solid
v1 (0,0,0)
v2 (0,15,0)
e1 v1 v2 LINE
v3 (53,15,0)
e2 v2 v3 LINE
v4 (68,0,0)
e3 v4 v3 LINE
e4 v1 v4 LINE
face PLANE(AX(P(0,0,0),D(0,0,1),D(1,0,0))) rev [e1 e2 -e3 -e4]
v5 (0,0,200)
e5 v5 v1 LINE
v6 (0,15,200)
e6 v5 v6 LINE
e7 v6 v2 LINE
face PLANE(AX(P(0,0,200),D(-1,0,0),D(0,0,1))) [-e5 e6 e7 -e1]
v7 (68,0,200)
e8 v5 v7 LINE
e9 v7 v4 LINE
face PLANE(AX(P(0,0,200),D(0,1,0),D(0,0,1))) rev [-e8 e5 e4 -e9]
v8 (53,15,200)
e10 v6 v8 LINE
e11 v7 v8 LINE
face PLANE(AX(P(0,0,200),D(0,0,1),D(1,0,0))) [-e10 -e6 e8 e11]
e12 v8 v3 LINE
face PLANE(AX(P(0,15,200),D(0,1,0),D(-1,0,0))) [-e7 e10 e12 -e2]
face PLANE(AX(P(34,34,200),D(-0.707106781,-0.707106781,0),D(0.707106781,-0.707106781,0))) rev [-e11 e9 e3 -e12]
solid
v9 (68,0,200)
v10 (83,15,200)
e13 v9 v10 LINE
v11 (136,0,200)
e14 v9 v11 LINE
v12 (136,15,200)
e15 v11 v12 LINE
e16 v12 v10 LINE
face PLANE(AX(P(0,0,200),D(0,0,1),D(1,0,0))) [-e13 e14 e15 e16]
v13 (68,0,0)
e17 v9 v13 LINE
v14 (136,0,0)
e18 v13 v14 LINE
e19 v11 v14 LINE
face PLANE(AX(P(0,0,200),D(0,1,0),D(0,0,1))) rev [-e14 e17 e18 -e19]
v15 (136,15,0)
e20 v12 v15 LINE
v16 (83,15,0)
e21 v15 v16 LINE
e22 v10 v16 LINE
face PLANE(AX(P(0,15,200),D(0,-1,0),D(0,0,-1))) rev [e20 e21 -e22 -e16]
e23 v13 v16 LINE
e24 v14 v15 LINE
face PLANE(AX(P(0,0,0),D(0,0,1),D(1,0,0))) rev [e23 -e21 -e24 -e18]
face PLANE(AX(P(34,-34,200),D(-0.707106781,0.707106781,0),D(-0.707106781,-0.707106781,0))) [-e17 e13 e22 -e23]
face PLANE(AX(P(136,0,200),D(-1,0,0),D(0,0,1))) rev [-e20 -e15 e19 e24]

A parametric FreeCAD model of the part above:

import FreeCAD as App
import Part
import Sketcher


def add_polygon(sketch, points):
    """Adds a closed chain of lines whose ends are joined by coincident constraints."""
    first, n = sketch.GeometryCount, len(points)
    for a, b in zip(points, points[1:] + points[:1]):
        sketch.addGeometry(Part.LineSegment(App.Vector(*a, 0), App.Vector(*b, 0)), False)
    for i in range(n):
        sketch.addConstraint(Sketcher.Constraint("Coincident", first + i, 2, first + (i + 1) % n, 1))

doc = App.newDocument("Part")
body = doc.addObject("PartDesign::Body", "Body")

# Sketch on XY plane
sketch1 = body.newObject("Sketcher::SketchObject", "Sketch")
sketch1.AttachmentSupport = (doc.getObject("XY_Plane"), [""])
sketch1.MapMode = "FlatFace"
add_polygon(sketch1, [(0, 15), (0, 0), (68, 0), (53, 15)])  # lines 0-3
sketch1.addConstraint(Sketcher.Constraint("Vertical", 0))
sketch1.addConstraint(Sketcher.Constraint("Horizontal", 1))
sketch1.addConstraint(Sketcher.Constraint("Horizontal", 3))
sketch1.addConstraint(Sketcher.Constraint("Coincident", 0, 2, -1, 1))
sketch1.addConstraint(Sketcher.Constraint("DistanceX", 1, 1, 1, 2, 68.0))
sketch1.addConstraint(Sketcher.Constraint("DistanceX", 3, 2, 3, 1, 53.0))
sketch1.addConstraint(Sketcher.Constraint("DistanceY", 0, 2, 0, 1, 15.0))
pad1 = body.newObject("PartDesign::Pad", "Pad")
pad1.Profile = sketch1
pad1.Length = 200
body2 = doc.addObject("PartDesign::Body", "Body001")

# Sketch on XY plane
sketch2 = body2.newObject("Sketcher::SketchObject", "Sketch001")
sketch2.AttachmentSupport = (doc.getObject("XY_Plane001"), [""])
sketch2.MapMode = "FlatFace"
add_polygon(sketch2, [(83, 15), (68, 0), (136, 0), (136, 15)])  # lines 0-3
sketch2.addConstraint(Sketcher.Constraint("Horizontal", 1))
sketch2.addConstraint(Sketcher.Constraint("Vertical", 2))
sketch2.addConstraint(Sketcher.Constraint("Horizontal", 3))
sketch2.addConstraint(Sketcher.Constraint("PointOnObject", 0, 2, -1))
sketch2.addConstraint(Sketcher.Constraint("DistanceX", 1, 1, 1, 2, 68.0))
sketch2.addConstraint(Sketcher.Constraint("DistanceX", 3, 2, 3, 1, 53.0))
sketch2.addConstraint(Sketcher.Constraint("DistanceY", 2, 1, 2, 2, 15.0))
sketch2.addConstraint(Sketcher.Constraint("DistanceX", -1, 1, 0, 2, 68.0))
pad2 = body2.newObject("PartDesign::Pad", "Pad001")
pad2.Profile = sketch2
pad2.Length = 200

doc.recompute()
